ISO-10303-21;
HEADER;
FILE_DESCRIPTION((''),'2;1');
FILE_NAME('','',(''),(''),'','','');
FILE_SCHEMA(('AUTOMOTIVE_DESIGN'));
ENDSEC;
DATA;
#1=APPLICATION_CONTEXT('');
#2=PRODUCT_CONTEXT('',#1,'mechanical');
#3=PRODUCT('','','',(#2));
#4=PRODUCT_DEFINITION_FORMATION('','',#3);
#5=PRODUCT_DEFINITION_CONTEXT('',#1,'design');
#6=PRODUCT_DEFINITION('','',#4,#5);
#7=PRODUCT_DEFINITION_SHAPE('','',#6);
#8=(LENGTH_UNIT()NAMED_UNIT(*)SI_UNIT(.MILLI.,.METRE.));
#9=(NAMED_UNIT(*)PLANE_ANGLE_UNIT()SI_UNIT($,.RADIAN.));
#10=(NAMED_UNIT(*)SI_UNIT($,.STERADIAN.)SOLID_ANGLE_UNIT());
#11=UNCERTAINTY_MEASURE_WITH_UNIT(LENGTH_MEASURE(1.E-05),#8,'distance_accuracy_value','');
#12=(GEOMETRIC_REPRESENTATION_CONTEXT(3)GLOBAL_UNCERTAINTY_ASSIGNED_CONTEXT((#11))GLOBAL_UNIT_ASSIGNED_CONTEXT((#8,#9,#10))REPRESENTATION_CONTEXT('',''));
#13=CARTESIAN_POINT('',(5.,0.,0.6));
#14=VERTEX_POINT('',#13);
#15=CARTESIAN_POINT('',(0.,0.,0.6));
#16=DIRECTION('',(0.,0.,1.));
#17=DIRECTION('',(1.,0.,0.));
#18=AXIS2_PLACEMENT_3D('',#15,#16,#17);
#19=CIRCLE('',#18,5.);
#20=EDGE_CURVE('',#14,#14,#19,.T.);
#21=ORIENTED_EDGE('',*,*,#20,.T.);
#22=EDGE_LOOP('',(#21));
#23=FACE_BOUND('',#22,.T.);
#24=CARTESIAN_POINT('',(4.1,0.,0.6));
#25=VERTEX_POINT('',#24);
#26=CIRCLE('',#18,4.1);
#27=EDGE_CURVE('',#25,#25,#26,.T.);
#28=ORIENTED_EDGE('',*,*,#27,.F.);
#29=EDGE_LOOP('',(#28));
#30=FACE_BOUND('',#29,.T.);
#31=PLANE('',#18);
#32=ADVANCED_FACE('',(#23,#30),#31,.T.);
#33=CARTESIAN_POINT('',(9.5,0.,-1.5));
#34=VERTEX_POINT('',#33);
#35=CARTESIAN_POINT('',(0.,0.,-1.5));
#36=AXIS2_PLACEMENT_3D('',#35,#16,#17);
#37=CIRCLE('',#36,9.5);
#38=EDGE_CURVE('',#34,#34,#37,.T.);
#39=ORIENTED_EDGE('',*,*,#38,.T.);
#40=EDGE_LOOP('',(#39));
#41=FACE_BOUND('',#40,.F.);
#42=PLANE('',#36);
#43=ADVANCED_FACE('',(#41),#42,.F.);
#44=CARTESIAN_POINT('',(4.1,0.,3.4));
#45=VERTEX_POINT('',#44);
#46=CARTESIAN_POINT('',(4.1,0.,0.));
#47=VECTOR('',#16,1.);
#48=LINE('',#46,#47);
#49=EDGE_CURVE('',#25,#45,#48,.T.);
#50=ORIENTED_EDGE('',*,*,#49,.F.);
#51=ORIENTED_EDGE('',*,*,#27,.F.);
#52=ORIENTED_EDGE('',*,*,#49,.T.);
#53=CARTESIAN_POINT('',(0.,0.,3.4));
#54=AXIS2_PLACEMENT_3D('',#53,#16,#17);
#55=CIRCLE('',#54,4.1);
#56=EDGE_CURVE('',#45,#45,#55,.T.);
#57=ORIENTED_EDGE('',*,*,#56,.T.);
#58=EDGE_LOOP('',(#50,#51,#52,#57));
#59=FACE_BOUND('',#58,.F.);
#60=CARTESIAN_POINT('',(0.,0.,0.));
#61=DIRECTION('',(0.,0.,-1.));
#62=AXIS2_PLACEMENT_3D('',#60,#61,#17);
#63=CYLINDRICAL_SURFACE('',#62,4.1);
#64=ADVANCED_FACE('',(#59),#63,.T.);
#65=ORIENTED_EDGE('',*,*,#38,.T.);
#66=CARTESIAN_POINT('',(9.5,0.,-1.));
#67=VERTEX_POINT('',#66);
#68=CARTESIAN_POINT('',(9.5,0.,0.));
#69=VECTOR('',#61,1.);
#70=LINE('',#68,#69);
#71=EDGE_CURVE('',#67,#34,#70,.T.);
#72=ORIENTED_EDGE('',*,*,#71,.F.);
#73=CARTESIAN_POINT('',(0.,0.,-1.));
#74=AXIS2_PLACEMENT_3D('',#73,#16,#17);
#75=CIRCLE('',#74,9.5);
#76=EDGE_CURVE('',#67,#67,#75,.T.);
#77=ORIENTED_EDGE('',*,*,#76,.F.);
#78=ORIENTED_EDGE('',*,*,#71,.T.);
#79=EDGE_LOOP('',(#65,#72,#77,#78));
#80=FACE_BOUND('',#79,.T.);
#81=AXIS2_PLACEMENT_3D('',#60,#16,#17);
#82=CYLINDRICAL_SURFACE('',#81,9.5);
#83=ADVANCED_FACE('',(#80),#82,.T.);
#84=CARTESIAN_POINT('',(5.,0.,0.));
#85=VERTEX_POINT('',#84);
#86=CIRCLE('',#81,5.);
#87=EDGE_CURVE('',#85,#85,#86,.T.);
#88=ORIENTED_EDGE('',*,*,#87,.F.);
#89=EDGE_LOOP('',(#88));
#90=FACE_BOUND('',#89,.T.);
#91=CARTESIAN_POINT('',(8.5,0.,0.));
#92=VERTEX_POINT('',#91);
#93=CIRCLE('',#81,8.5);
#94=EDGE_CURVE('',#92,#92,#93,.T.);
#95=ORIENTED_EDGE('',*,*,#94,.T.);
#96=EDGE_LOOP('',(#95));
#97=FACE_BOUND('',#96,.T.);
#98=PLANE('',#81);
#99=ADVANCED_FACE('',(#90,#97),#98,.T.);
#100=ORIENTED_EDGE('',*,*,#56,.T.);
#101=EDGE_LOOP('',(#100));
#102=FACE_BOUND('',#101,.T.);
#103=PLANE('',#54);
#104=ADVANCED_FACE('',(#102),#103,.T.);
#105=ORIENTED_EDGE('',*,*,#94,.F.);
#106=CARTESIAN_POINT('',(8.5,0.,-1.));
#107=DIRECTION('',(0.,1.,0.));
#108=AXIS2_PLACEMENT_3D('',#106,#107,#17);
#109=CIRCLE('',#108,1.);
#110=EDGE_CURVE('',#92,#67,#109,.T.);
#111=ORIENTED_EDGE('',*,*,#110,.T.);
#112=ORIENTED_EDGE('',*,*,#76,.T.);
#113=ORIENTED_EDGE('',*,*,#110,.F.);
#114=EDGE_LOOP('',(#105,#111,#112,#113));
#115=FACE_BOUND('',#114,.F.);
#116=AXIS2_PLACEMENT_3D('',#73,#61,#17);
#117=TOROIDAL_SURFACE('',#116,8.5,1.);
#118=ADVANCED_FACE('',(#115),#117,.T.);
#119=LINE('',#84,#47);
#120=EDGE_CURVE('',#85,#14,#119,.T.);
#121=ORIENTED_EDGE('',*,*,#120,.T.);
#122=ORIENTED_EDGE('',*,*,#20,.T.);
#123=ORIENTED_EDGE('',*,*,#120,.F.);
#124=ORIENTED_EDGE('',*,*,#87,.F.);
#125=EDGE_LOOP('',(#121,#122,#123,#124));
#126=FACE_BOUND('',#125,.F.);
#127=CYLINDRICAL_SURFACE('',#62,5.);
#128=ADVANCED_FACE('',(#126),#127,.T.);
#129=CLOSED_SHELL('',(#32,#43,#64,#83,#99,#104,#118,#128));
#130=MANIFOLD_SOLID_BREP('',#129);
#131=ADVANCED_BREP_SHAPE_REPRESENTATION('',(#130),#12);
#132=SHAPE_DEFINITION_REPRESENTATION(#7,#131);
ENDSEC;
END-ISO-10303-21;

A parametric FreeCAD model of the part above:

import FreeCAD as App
import Part
import Sketcher

V = App.Vector
Q = App.Units.Quantity


def edges_at(feature, points):
    """Names of the edges that pass closest to the given points."""
    edges = feature.Shape.Edges
    near = lambda p: min(range(len(edges)), key=lambda i: edges[i].distToShape(Part.Vertex(*p))[0])
    return sorted({f"Edge{near(p) + 1}" for p in points})

doc = App.newDocument("Part")
body = doc.addObject("PartDesign::Body", "Body")

sketch1 = body.newObject("Sketcher::SketchObject", "Sketch")
sketch1.AttachmentSupport = (doc.getObject("XY_Plane"), [""])
sketch1.MapMode = "FlatFace"
sketch1.addGeometry(Part.Circle(V(0, 0, 0), V(0, 0, 1), 9.5), False)
sketch1.addConstraint([
    Sketcher.Constraint("Coincident", 0, 3, -1, 1),
    Sketcher.Constraint("Diameter", 0, Q("19 mm")),
])
pad1 = body.newObject("PartDesign::Pad", "Pad")
pad1.Profile = sketch1
pad1.Length = 1.5
pad1.Reversed = True

sketch2 = body.newObject("Sketcher::SketchObject", "Sketch001")
sketch2.AttachmentSupport = (doc.getObject("XY_Plane"), [""])
sketch2.MapMode = "FlatFace"
sketch2.addGeometry(Part.Circle(V(0, 0, 0), V(0, 0, 1), 4.1), False)
sketch2.addConstraint([
    Sketcher.Constraint("Coincident", 0, 3, -1, 1),
    Sketcher.Constraint("Diameter", 0, Q("8.2 mm")),
])
pad2 = body.newObject("PartDesign::Pad", "Pad001")
pad2.Profile = sketch2
pad2.Length = 3.4

sketch3 = body.newObject("Sketcher::SketchObject", "Sketch002")
sketch3.AttachmentSupport = (doc.getObject("XY_Plane"), [""])
sketch3.MapMode = "FlatFace"
sketch3.addGeometry([
    Part.Circle(V(0, 0, 0), V(0, 0, 1), 5),
    Part.Circle(V(0, 0, 0), V(0, 0, 1), 4.1),
], False)
sketch3.addConstraint([
    Sketcher.Constraint("Coincident", 0, 3, -1, 1),
    Sketcher.Constraint("Coincident", 1, 3, -1, 1),
    Sketcher.Constraint("Diameter", 0, Q("10 mm")),
    Sketcher.Constraint("Diameter", 1, Q("8.2 mm")),
])
pad3 = body.newObject("PartDesign::Pad", "Pad002")
pad3.Profile = sketch3
pad3.Length = 0.6
doc.recompute()

fillet = body.newObject("PartDesign::Fillet", "Fillet")
fillet.Base = (pad3, edges_at(pad3, [(-9.5, 0, 0)]))
fillet.Radius = 1

doc.recompute()
